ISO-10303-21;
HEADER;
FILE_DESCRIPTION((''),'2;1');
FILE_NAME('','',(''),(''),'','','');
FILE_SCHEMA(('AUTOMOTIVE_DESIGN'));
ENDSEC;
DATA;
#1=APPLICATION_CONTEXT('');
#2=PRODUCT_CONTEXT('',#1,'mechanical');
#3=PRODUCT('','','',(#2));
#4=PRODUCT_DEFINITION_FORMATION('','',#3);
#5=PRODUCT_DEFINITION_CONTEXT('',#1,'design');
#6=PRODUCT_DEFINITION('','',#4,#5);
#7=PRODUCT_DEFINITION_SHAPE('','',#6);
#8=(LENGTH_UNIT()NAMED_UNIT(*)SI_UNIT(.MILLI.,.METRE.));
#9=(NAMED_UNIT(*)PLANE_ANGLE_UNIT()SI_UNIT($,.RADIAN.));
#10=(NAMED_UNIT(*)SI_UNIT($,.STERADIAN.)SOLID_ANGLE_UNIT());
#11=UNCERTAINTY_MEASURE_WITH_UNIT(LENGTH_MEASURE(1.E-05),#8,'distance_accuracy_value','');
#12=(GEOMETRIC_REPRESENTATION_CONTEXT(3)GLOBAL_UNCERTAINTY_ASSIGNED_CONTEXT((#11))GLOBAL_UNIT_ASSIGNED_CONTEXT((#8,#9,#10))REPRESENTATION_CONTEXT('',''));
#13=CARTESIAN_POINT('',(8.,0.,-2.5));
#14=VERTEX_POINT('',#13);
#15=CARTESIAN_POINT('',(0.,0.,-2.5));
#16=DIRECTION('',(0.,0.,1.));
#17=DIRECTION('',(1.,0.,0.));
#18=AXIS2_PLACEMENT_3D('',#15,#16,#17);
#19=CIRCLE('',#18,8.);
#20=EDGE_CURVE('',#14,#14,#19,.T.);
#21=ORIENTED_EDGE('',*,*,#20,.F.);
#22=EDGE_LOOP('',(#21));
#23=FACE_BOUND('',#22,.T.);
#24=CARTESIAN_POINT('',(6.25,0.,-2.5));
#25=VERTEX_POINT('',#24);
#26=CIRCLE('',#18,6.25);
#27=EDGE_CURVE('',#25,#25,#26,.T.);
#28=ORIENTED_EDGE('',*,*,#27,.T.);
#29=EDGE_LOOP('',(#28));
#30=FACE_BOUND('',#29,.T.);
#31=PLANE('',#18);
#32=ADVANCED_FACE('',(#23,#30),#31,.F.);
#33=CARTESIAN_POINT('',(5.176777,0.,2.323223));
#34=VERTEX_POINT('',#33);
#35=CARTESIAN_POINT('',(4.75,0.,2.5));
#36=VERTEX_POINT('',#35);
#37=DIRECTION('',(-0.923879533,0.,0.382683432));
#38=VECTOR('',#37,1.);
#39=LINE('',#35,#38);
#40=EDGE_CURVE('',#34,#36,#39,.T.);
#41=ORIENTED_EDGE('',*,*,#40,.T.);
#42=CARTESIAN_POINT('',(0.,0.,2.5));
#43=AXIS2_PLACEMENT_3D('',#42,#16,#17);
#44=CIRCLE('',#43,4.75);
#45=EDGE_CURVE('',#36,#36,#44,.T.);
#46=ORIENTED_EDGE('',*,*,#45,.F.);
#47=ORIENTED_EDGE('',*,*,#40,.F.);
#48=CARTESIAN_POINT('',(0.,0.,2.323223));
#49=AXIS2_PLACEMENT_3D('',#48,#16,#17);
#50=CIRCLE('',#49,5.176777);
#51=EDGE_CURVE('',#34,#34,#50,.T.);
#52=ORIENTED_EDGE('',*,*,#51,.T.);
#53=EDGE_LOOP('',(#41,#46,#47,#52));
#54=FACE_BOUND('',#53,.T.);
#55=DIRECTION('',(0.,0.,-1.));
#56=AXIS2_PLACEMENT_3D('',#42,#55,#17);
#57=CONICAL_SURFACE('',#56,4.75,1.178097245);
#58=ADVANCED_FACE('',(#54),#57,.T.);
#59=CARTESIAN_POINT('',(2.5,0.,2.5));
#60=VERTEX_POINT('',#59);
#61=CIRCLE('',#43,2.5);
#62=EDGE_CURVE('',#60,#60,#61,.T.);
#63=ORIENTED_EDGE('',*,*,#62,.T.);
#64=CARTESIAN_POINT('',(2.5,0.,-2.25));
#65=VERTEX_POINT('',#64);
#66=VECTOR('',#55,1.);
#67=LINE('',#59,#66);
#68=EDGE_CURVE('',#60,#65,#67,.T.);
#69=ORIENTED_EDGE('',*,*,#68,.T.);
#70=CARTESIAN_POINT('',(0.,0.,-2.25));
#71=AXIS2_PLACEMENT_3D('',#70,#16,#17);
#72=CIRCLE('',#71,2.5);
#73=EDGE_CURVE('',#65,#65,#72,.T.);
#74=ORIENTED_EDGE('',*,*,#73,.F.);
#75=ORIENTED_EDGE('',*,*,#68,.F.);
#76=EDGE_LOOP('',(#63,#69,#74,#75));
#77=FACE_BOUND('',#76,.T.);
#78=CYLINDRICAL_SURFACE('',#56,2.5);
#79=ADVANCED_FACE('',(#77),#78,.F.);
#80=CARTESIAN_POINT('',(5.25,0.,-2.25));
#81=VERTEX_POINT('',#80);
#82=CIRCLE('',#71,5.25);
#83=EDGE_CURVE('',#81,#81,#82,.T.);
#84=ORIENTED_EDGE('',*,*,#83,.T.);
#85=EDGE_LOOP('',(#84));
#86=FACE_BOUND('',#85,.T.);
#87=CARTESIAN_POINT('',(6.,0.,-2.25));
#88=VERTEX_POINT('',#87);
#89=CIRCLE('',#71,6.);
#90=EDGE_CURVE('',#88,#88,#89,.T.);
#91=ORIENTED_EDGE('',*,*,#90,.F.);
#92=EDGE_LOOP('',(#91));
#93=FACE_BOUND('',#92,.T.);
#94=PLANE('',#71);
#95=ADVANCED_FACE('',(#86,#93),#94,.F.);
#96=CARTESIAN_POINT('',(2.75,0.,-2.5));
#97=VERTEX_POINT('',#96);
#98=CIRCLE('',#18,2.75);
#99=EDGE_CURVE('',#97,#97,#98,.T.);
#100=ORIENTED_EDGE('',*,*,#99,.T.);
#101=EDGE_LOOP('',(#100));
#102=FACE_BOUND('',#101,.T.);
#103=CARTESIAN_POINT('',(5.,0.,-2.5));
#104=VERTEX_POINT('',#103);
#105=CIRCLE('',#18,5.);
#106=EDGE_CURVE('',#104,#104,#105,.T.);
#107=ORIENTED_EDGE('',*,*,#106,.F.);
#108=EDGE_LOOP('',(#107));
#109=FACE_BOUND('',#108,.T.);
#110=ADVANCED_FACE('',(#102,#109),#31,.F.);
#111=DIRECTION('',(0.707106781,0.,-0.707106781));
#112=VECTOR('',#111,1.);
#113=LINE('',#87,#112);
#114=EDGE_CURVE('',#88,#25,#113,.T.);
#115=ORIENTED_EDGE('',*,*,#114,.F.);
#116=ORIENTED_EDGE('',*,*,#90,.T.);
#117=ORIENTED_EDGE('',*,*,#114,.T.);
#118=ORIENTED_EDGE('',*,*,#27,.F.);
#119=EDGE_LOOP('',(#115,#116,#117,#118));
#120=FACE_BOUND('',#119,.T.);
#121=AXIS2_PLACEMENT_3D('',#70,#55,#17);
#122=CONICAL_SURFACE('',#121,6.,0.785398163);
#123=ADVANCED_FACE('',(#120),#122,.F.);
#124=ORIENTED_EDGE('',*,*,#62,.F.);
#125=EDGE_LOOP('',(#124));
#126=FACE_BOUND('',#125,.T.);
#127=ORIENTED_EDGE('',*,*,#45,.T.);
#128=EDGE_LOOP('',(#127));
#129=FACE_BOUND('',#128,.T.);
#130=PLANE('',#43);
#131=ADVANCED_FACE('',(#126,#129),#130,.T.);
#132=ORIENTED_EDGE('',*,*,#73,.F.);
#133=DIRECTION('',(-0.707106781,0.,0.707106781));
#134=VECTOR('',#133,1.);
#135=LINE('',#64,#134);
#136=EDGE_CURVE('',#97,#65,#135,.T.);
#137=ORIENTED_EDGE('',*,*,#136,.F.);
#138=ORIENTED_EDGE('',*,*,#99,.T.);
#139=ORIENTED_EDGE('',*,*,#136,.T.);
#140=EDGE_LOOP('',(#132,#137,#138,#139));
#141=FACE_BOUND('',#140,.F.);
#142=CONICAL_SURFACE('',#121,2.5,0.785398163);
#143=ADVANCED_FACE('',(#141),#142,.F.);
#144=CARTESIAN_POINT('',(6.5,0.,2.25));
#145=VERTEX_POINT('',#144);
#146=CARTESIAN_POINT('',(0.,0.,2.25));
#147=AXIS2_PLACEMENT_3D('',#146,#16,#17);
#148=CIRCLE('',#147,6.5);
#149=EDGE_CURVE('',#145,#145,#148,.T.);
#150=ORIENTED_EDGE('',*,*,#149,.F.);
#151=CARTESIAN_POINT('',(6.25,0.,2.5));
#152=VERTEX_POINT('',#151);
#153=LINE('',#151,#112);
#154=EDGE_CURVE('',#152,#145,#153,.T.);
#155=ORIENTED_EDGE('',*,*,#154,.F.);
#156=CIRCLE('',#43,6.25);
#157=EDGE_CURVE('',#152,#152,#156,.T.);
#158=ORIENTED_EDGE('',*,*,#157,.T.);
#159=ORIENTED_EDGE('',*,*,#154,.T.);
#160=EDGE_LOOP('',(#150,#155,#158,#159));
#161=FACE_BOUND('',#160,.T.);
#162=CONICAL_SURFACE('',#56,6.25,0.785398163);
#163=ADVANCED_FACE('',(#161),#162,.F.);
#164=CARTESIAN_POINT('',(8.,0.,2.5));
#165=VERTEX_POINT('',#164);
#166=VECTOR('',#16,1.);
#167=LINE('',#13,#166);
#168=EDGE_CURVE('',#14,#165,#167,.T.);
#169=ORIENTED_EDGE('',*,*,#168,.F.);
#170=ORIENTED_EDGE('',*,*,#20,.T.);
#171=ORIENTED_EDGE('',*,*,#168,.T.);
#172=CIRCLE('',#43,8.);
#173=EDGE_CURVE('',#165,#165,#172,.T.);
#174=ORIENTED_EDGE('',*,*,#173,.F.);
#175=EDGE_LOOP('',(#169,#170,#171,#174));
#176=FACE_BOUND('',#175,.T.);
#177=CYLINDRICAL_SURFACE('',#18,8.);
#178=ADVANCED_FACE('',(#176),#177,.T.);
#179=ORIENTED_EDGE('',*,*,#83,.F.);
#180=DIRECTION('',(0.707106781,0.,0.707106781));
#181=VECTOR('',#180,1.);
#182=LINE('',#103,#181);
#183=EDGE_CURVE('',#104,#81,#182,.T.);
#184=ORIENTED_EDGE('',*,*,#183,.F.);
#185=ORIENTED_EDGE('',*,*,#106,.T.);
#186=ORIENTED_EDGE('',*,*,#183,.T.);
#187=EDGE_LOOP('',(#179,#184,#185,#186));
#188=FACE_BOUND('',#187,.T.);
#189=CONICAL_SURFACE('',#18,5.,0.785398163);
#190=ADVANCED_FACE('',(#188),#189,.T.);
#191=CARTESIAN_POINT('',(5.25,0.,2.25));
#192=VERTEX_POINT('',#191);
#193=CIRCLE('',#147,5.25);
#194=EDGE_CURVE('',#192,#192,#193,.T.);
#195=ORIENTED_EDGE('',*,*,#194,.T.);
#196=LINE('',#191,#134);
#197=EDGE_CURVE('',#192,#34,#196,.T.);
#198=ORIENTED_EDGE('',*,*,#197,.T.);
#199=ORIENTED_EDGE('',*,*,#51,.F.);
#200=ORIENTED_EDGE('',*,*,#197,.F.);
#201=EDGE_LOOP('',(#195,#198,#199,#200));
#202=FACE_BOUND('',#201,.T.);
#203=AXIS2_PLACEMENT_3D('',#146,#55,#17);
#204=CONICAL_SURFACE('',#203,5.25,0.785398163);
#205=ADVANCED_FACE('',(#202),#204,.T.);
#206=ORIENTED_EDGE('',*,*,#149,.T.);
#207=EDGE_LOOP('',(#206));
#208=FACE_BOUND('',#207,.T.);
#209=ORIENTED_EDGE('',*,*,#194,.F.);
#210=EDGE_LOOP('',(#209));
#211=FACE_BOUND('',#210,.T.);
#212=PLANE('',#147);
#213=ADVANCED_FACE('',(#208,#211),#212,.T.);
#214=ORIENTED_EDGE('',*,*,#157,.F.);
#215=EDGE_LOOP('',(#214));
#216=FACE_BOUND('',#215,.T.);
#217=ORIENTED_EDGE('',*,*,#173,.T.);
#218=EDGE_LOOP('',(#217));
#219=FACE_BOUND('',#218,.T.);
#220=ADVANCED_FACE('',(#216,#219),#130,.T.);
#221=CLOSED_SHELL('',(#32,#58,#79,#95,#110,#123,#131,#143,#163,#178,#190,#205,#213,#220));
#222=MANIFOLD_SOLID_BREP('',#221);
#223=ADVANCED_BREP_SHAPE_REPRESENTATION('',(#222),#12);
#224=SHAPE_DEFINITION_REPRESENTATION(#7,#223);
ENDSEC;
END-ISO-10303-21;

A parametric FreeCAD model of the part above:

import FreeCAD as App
import Part
import Sketcher
from FreeCAD import Vector


def edges_at(feature, points):
    """Names of the edges that pass closest to the given points."""
    edges = feature.Shape.Edges
    near = lambda p: min(range(len(edges)), key=lambda i: edges[i].distToShape(Part.Vertex(*p))[0])
    return sorted({f"Edge{near(p) + 1}" for p in points})


def add_polygon(sketch, points):
    """Adds a closed chain of lines whose ends are joined by coincident constraints."""
    first, n = sketch.GeometryCount, len(points)
    for a, b in zip(points, points[1:] + points[:1]):
        sketch.addGeometry(Part.LineSegment(App.Vector(*a, 0), App.Vector(*b, 0)), False)
    for i in range(n):
        sketch.addConstraint(Sketcher.Constraint("Coincident", first + i, 2, first + (i + 1) % n, 1))

doc = App.newDocument("Part")
params = doc.addObject("Spreadsheet::Sheet", "Params")
for row, (alias, value) in enumerate([
    ("sketch1_height", "5 mm"),
    ("sketch1_width", "2.5 mm"),
    ("revolution_angle", "360 deg"),
    ("chamfer_size", "0.25 mm"),
], start=1):
    params.set(f"A{row}", alias)
    params.set(f"B{row}", "=" + value)
    params.setAlias(f"B{row}", alias)

body = doc.addObject("PartDesign::Body", "Body")

sketch1 = doc.addObject("Sketcher::SketchObject", "Sketch")
body.addObject(sketch1)
sketch1.AttachmentSupport = (doc.XZ_Plane, [""])
sketch1.MapMode = "FlatFace"
add_polygon(sketch1, [(2.5, -2.5), (5, -2.5), (5.25, -2.25), (6, -2.25), (6.25, -2.5), (8, -2.5), (8, 2.5), (6.25, 2.5), (6.5, 2.25), (5.25, 2.25), (5, 2.5), (2.5, 2.5)])
sketch1.addConstraint(Sketcher.Constraint("Horizontal", 0))
sketch1.addConstraint(Sketcher.Constraint("Horizontal", 2))
sketch1.addConstraint(Sketcher.Constraint("Horizontal", 4))
sketch1.addConstraint(Sketcher.Constraint("Vertical", 5))
sketch1.addConstraint(Sketcher.Constraint("Horizontal", 6))
sketch1.addConstraint(Sketcher.Constraint("Horizontal", 8))
sketch1.addConstraint(Sketcher.Constraint("Horizontal", 10))
sketch1.addConstraint(Sketcher.Constraint("Vertical", 11))
sketch1.addConstraint(Sketcher.Constraint("Symmetric", 3, 2, 6, 2, -1))
sketch1.addConstraint(Sketcher.Constraint("Symmetric", 1, 2, 8, 2, -1))
sketch1.addConstraint(Sketcher.Constraint("Symmetric", 0, 2, 9, 2, -1))
sketch1.addConstraint(Sketcher.Constraint("Perpendicular", 1, 3))
sketch1.addConstraint(Sketcher.Constraint("Parallel", 3, 7))
sketch1.addConstraint(Sketcher.Constraint("Parallel", 7, 9))
sketch1.addConstraint(Sketcher.Constraint("Horizontal", 0, 2, 3, 2))
sketch1.addConstraint(Sketcher.Constraint("DistanceY", 5, 1, 5, 2, 5.0))
sketch1.addConstraint(Sketcher.Constraint("DistanceX", 0, 1, 0, 2, 2.5))
sketch1.addConstraint(Sketcher.Constraint("DistanceX", -1, 1, 0, 2, 5.0))
sketch1.addConstraint(Sketcher.Constraint("DistanceX", -1, 1, 2, 2, 6.0))
sketch1.addConstraint(Sketcher.Constraint("DistanceX", -1, 1, 4, 2, 8.0))
sketch1.addConstraint(Sketcher.Constraint("DistanceX", 10, 2, 7, 2, 4.0))
sketch1.setExpression("Constraints[27]", "Params.sketch1_height")
sketch1.setExpression("Constraints[28]", "Params.sketch1_width")
revolution = doc.addObject("PartDesign::Revolution", "Revolution")
body.addObject(revolution)
revolution.Profile = sketch1
revolution.ReferenceAxis = (sketch1, ["V_Axis"])
revolution.setExpression("Angle", "Params.revolution_angle")
doc.recompute()

chamfer = doc.addObject("PartDesign::Chamfer", "Chamfer")
body.addObject(chamfer)
chamfer.Base = (revolution, edges_at(revolution, [(-5, 0, 2.5), (-2.5, 0, -2.5)]))
chamfer.setExpression("Size", "Params.chamfer_size")

doc.recompute()
